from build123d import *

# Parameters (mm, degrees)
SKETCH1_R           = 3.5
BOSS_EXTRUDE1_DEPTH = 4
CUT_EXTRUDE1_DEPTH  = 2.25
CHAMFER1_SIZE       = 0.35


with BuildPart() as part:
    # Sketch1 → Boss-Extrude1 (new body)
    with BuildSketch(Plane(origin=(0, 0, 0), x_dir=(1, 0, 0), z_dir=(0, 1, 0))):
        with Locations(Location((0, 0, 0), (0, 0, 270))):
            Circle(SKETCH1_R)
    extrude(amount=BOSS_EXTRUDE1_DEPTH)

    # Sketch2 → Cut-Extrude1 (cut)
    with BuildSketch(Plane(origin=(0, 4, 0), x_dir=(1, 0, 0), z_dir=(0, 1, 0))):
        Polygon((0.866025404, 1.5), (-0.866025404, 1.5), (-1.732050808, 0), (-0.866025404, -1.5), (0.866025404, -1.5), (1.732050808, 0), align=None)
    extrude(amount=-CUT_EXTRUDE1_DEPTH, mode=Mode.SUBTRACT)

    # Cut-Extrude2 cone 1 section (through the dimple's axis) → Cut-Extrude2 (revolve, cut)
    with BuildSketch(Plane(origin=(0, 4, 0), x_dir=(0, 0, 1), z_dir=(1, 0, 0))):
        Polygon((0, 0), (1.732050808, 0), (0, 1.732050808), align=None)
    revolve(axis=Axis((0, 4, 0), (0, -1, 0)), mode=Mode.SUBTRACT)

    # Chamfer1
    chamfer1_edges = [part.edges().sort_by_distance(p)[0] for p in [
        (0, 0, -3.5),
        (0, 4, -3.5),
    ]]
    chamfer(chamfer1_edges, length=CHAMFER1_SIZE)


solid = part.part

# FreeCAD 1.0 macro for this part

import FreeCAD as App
import Part
import Sketcher
from FreeCAD import Vector
Q = App.Units.Quantity


def edges_at(feature, points):
    """Names of the edges that pass closest to the given points."""
    edges = feature.Shape.Edges
    near = lambda p: min(range(len(edges)), key=lambda i: edges[i].distToShape(Part.Vertex(*p))[0])
    return sorted({f"Edge{near(p) + 1}" for p in points})


def add_polygon(sketch, points):
    """Adds a closed chain of lines whose ends are joined by coincident constraints."""
    first, n = sketch.GeometryCount, len(points)
    for a, b in zip(points, points[1:] + points[:1]):
        sketch.addGeometry(Part.LineSegment(App.Vector(*a, 0), App.Vector(*b, 0)), False)
    for i in range(n):
        sketch.addConstraint(Sketcher.Constraint("Coincident", first + i, 2, first + (i + 1) % n, 1))

doc = App.newDocument("Part")
body = doc.addObject("PartDesign::Body", "Body")

# Sketch on XZ plane
sketch1 = body.newObject("Sketcher::SketchObject", "Sketch")
sketch1.AttachmentSupport = (doc.getObject("XZ_Plane"), [""])
sketch1.MapMode = "FlatFace"
sketch1.addGeometry(Part.Circle(Vector(0, 0, 0), Vector(0, 0, 1), 3.5), False)
sketch1.addConstraint(Sketcher.Constraint("Coincident", 0, 3, -1, 1))
sketch1.addConstraint(Sketcher.Constraint("Diameter", 0, 7.0))
pad1 = body.newObject("PartDesign::Pad", "Pad")
pad1.Profile = sketch1
pad1.Length = 4
pad1.Reversed = True

# Sketch on XZ plane
sketch2 = body.newObject("Sketcher::SketchObject", "Sketch001")
sketch2.AttachmentSupport = (doc.getObject("XZ_Plane"), [""])
sketch2.MapMode = "FlatFace"
sketch2.AttachmentOffset = App.Placement(Vector(0, 0, -4), App.Rotation())
add_polygon(sketch2, [(0.9, -1.5), (-0.9, -1.5), (-1.7, 0), (-0.9, 1.5), (0.9, 1.5), (1.7, 0)])  # lines 0-5
sketch2.addConstraint(Sketcher.Constraint("Horizontal", 0))
sketch2.addConstraint(Sketcher.Constraint("Horizontal", 3))
sketch2.addConstraint(Sketcher.Constraint("Symmetric", 0, 2, 3, 2, -1, 1))
sketch2.addConstraint(Sketcher.Constraint("Symmetric", 1, 2, 4, 2, -1, 1))
sketch2.addConstraint(Sketcher.Constraint("PointOnObject", 1, 2, -1))
sketch2.addConstraint(Sketcher.Constraint("Parallel", 2, 5))
sketch2.addConstraint(Sketcher.Constraint("Vertical", 0, 2, 2, 2))
sketch2.addConstraint(Sketcher.Constraint("Angle", 1, Q("120 deg")))
sketch2.addConstraint(Sketcher.Constraint("DistanceY", 0, 2, 2, 2, 3.0))
sketch2.addConstraint(Sketcher.Constraint("DistanceX", 0, 2, 0, 1, 1.732051))
pocket1 = body.newObject("PartDesign::Pocket", "Pocket")
pocket1.Profile = sketch2
pocket1.Length = 2.25
pocket1.Reversed = True

# Sketch on YZ plane
sketch3 = body.newObject("Sketcher::SketchObject", "Sketch002")
sketch3.AttachmentSupport = (doc.getObject("YZ_Plane"), [""])
sketch3.MapMode = "FlatFace"
add_polygon(sketch3, [(4, 0), (4, 1.7), (2.3, 0)])  # lines 0-2
sketch3.addConstraint(Sketcher.Constraint("Vertical", 0))
sketch3.addConstraint(Sketcher.Constraint("Horizontal", 2))
sketch3.addConstraint(Sketcher.Constraint("PointOnObject", 1, 2, -1))
sketch3.addConstraint(Sketcher.Constraint("Equal", 2, 0))
sketch3.addConstraint(Sketcher.Constraint("DistanceX", -1, 1, 0, 2, 4.0))
sketch3.addConstraint(Sketcher.Constraint("DistanceX", 2, 1, 2, 2, 1.732051))
groove = body.newObject("PartDesign::Groove", "Groove")
groove.Profile = sketch3
groove.ReferenceAxis = (sketch3, ["H_Axis"])
groove.Angle = 360
doc.recompute()

chamfer = body.newObject("PartDesign::Chamfer", "Chamfer")
chamfer.Base = (groove, edges_at(groove, [(0, 0, -3.5), (0, 4, -3.5)]))
chamfer.Size = 0.35

doc.recompute()
